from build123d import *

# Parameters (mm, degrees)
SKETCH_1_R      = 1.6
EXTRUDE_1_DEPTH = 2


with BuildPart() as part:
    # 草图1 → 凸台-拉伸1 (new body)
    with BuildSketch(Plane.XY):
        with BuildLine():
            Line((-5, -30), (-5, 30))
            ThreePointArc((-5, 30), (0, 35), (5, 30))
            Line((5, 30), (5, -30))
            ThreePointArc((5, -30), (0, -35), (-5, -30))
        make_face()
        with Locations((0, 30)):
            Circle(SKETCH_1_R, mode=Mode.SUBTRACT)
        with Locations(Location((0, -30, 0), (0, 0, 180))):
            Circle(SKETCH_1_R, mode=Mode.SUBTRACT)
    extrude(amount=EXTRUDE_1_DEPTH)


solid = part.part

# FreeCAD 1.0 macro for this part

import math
import FreeCAD as App
import Part
import Sketcher
from FreeCAD import Vector

doc = App.newDocument("Part")
params = doc.addObject("Spreadsheet::Sheet", "Params")
for row, (alias, value) in enumerate([
    ("sketch1_radius", "5 mm"),
    ("sketch1_diameter", "3.2 mm"),
    ("sketch1_height", "60 mm"),
    ("pad1_length", "2 mm"),
], start=1):
    params.set(f"A{row}", alias)
    params.set(f"B{row}", "=" + value)
    params.setAlias(f"B{row}", alias)

body = doc.addObject("PartDesign::Body", "Body")

# Sketch on XY plane
sketch1 = doc.addObject("Sketcher::SketchObject", "Sketch")
body.addObject(sketch1)
sketch1.AttachmentSupport = (doc.XY_Plane, [""])
sketch1.MapMode = "FlatFace"
sketch1.addGeometry([
    Part.LineSegment(Vector(-5, 30, 0), Vector(-5, -30, 0)),  # 0
    Part.ArcOfCircle(Part.Circle(Vector(0, -30, 0), Vector(0, 0, 1), 5), math.radians(180), math.radians(360)),  # 1
    Part.LineSegment(Vector(5, -30, 0), Vector(5, 30, 0)),  # 2
    Part.ArcOfCircle(Part.Circle(Vector(0, 30, 0), Vector(0, 0, 1), 5), math.radians(0), math.radians(180)),  # 3
    Part.Circle(Vector(0, -30, 0), Vector(0, 0, 1), 1.6),  # 4
    Part.Circle(Vector(0, 30, 0), Vector(0, 0, 1), 1.6),  # 5
], False)
sketch1.addConstraint([
    Sketcher.Constraint("Tangent", 0, 2, 1, 1),
    Sketcher.Constraint("Tangent", 1, 2, 2, 1),
    Sketcher.Constraint("Tangent", 2, 2, 3, 1),
    Sketcher.Constraint("Tangent", 3, 2, 0, 1),
    Sketcher.Constraint("Vertical", 0),
    Sketcher.Constraint("Vertical", 2),
    Sketcher.Constraint("Coincident", 4, 3, 1, 3),
    Sketcher.Constraint("Coincident", 5, 3, 3, 3),
    Sketcher.Constraint("Equal", 4, 5),
    Sketcher.Constraint("Symmetric", 1, 3, 3, 3, -1, 1),
    Sketcher.Constraint("Radius", 1, 5.0),
    Sketcher.Constraint("Diameter", 4, 3.2),
    Sketcher.Constraint("DistanceY", 0, 2, 0, 1, 60.0),
])
sketch1.setExpression("Constraints[10]", "Params.sketch1_radius")
sketch1.setExpression("Constraints[11]", "Params.sketch1_diameter")
sketch1.setExpression("Constraints[12]", "Params.sketch1_height")
pad1 = doc.addObject("PartDesign::Pad", "Pad")
body.addObject(pad1)
pad1.Profile = sketch1
pad1.setExpression("Length", "Params.pad1_length")

doc.recompute()
